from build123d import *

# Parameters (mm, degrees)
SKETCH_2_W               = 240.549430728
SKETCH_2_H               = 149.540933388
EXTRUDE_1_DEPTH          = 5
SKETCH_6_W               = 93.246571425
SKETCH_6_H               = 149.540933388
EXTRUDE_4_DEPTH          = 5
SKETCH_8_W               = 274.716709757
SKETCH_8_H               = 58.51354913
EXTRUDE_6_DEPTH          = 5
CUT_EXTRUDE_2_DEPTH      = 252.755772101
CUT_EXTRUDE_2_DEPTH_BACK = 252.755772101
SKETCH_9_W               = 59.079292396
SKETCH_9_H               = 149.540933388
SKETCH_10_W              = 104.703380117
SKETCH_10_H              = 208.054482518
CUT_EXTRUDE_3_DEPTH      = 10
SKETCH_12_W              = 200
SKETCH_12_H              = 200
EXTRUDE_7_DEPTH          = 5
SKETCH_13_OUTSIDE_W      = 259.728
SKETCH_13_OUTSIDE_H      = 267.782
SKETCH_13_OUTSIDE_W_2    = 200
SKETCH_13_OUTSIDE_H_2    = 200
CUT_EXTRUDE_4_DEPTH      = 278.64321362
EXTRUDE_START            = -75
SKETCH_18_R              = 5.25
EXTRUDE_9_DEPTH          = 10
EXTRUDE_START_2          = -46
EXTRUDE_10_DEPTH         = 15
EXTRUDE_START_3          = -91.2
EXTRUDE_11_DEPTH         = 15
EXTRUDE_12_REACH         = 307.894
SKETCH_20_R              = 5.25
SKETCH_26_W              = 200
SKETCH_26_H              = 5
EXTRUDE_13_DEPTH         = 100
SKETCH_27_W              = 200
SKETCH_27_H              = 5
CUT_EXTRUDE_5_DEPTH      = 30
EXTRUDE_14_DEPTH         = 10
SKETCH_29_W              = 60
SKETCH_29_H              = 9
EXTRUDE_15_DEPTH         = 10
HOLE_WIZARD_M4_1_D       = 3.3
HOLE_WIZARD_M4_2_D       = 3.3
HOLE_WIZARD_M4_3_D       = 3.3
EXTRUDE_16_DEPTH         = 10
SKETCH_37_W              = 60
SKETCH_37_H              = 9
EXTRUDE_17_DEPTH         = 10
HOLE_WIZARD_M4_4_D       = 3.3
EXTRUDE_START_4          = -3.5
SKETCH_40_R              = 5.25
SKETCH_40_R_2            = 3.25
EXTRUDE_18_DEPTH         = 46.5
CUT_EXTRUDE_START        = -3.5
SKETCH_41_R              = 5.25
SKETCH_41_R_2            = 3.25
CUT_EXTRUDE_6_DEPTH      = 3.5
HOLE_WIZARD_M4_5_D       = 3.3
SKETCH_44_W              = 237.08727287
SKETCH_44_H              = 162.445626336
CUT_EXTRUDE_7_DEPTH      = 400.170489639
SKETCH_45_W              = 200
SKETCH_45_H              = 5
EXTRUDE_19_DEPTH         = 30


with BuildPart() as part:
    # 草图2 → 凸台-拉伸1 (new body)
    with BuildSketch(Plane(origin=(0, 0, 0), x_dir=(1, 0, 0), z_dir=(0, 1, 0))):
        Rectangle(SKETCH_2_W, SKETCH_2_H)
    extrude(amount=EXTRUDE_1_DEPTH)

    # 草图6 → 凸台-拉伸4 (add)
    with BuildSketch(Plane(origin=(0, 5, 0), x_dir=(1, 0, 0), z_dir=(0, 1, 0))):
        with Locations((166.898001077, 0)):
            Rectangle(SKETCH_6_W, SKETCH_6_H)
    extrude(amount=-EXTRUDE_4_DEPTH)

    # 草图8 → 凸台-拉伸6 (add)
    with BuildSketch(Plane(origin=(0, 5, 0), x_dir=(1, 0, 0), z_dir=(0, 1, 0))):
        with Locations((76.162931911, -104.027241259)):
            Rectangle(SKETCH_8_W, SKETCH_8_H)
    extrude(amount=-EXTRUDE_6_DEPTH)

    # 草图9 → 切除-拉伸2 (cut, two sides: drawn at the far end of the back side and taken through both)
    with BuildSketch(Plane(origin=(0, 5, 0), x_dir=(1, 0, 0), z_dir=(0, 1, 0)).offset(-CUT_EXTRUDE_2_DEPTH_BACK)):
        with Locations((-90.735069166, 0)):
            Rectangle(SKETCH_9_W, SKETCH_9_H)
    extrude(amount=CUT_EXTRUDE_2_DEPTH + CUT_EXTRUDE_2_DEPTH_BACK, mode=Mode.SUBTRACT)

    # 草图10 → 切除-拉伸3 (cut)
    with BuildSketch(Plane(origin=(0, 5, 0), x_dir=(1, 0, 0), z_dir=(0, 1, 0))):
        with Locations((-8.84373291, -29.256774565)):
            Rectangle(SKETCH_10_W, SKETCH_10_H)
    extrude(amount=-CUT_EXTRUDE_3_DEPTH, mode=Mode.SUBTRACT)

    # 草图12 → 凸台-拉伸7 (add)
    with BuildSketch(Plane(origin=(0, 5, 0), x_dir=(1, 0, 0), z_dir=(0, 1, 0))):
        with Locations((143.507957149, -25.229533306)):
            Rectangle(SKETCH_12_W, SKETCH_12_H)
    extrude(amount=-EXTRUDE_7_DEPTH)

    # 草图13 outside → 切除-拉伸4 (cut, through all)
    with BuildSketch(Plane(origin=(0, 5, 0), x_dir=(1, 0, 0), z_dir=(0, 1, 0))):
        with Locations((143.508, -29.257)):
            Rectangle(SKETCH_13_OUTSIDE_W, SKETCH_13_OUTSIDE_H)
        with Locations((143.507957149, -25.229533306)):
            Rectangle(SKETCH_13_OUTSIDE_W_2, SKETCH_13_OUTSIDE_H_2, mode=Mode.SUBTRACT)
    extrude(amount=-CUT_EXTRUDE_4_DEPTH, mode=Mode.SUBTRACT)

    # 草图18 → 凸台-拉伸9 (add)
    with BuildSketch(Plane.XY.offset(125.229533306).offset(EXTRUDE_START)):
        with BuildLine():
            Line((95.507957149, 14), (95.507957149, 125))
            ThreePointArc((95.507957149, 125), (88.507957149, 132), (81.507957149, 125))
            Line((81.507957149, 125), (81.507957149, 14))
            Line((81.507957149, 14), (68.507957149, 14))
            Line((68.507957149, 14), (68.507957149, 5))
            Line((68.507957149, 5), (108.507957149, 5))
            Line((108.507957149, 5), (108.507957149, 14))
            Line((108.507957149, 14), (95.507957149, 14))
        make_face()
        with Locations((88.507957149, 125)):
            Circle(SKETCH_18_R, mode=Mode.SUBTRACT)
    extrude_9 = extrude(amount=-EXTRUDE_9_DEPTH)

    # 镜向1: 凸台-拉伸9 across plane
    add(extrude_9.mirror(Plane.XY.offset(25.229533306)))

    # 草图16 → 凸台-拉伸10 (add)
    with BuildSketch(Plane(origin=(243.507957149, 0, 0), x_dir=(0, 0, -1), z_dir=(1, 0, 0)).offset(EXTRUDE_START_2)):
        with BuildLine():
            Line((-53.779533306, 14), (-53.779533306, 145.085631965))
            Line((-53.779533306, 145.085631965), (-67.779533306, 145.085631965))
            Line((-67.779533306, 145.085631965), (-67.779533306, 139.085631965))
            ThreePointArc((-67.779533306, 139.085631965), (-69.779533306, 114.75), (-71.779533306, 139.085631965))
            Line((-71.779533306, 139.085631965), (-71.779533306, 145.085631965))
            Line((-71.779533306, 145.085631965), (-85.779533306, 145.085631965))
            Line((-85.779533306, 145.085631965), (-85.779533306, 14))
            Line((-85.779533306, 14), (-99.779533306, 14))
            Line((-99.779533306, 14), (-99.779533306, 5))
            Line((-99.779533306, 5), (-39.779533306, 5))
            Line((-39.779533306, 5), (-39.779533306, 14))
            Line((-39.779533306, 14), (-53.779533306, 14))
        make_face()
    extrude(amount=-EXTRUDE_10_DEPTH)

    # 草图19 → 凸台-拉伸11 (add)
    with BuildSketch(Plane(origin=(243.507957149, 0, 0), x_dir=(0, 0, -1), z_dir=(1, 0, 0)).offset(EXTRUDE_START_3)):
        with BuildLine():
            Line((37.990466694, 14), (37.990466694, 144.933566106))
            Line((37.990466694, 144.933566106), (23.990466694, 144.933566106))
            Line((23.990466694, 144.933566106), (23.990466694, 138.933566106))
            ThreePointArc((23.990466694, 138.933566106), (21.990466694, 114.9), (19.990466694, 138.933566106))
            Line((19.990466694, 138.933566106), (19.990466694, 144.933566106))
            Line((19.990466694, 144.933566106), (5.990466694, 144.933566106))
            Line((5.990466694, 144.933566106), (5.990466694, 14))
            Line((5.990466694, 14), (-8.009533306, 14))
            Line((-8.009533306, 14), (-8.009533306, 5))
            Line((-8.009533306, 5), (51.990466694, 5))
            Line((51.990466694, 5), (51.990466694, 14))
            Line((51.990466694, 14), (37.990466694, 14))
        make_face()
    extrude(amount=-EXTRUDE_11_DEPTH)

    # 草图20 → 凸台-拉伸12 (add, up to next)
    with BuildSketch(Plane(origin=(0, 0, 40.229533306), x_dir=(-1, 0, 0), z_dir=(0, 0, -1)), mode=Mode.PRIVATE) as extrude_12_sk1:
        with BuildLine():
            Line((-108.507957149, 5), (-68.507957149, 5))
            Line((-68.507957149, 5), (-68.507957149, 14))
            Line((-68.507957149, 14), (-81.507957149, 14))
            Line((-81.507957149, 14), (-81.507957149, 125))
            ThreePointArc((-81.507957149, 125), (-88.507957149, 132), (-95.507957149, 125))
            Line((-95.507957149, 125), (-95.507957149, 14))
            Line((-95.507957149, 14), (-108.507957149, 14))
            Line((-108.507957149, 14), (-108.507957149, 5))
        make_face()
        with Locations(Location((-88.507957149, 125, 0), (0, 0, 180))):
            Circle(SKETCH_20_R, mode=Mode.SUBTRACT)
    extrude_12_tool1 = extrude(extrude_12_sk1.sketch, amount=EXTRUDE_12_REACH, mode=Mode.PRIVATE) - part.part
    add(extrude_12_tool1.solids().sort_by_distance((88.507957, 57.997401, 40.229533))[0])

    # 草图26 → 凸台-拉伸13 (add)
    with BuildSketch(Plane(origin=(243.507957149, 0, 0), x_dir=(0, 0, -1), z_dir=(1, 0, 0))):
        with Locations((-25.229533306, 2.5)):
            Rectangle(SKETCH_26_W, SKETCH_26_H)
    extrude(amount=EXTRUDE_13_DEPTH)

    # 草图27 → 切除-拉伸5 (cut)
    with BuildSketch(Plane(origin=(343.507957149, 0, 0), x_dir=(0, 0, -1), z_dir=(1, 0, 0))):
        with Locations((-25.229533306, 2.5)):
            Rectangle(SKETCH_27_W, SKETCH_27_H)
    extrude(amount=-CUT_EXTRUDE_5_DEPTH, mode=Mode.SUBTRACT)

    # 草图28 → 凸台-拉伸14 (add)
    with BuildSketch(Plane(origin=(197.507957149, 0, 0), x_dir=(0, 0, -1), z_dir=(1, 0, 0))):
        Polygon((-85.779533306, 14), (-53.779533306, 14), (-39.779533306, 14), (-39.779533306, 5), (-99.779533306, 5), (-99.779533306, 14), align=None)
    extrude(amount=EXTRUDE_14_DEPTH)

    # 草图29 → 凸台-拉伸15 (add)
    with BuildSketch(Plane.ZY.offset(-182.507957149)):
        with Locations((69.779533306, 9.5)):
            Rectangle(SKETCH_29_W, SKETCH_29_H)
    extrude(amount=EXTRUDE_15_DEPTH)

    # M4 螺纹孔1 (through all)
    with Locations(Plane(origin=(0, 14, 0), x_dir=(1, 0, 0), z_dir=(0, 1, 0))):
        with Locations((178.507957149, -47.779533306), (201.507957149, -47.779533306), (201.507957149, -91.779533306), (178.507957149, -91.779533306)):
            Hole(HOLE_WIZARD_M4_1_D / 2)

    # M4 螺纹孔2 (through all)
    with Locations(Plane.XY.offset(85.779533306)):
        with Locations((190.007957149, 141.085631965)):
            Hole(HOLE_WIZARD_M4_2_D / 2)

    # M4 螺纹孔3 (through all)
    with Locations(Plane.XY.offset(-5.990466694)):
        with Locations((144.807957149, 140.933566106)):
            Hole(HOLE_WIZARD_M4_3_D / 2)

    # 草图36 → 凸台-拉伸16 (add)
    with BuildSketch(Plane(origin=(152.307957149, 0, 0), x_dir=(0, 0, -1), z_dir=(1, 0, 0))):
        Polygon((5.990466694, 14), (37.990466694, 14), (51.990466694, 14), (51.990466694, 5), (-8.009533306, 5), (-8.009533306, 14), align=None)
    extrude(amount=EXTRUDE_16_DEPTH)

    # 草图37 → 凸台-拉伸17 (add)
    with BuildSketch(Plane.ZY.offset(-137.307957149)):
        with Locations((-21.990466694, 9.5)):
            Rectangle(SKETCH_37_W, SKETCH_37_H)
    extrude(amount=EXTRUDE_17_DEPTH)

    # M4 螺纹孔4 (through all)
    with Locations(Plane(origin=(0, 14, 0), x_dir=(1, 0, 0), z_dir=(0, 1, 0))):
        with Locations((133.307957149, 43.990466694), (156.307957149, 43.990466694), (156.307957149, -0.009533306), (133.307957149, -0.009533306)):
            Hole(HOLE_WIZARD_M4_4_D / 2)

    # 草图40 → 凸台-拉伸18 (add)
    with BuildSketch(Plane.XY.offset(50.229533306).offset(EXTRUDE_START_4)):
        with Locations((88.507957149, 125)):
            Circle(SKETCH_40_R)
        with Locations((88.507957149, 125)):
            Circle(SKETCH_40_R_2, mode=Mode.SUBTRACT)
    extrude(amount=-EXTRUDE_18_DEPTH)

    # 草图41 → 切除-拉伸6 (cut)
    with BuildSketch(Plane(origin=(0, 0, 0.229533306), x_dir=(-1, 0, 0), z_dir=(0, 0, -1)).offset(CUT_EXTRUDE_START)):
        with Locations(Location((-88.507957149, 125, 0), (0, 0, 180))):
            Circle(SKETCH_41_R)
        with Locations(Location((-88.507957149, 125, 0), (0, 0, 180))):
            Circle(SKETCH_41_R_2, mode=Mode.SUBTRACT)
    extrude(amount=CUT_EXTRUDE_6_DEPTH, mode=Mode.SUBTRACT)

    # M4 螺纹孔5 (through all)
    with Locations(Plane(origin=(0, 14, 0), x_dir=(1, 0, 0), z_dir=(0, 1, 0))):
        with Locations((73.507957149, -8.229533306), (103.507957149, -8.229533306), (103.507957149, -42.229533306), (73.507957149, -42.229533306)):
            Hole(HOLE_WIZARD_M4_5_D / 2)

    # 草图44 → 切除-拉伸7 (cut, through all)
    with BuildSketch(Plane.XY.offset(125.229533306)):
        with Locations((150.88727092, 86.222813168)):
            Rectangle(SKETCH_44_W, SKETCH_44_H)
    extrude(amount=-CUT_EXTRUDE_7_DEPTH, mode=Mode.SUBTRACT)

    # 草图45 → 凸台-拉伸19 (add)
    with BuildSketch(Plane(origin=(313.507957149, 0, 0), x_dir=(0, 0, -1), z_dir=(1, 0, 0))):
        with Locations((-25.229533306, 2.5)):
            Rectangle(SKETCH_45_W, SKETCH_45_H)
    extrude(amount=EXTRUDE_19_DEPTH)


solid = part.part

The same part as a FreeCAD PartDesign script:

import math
import FreeCAD as App
import Part
import Sketcher

V = App.Vector


def add_polygon(sketch, points):
    """Adds a closed chain of lines whose ends are joined by coincident constraints."""
    first, n = sketch.GeometryCount, len(points)
    for a, b in zip(points, points[1:] + points[:1]):
        sketch.addGeometry(Part.LineSegment(App.Vector(*a, 0), App.Vector(*b, 0)), False)
    for i in range(n):
        sketch.addConstraint(Sketcher.Constraint("Coincident", first + i, 2, first + (i + 1) % n, 1))

doc = App.newDocument("Part")
body = doc.addObject("PartDesign::Body", "Body")

sketch1 = doc.addObject("Sketcher::SketchObject", "Sketch")
body.addObject(sketch1)
sketch1.AttachmentSupport = (doc.XZ_Plane, [""])
sketch1.MapMode = "FlatFace"
add_polygon(sketch1, [(-120.274715, -74.770467), (-120.274715, 74.770467), (120.274715, 74.770467), (120.274715, -74.770467)])
sketch1.addConstraint([
    Sketcher.Constraint("Vertical", 0),
    Sketcher.Constraint("Horizontal", 1),
    Sketcher.Constraint("Vertical", 2),
    Sketcher.Constraint("Horizontal", 3),
    Sketcher.Constraint("Symmetric", 0, 2, 2, 2, -1, 1),
    Sketcher.Constraint("DistanceX", 1, 1, 1, 2, 240.549431),
    Sketcher.Constraint("DistanceY", 0, 1, 0, 2, 149.540933),
])
pad1 = doc.addObject("PartDesign::Pad", "Pad")
body.addObject(pad1)
pad1.Profile = sketch1
pad1.Length = 5
pad1.Reversed = True

sketch2 = doc.addObject("Sketcher::SketchObject", "Sketch001")
body.addObject(sketch2)
sketch2.AttachmentSupport = (doc.XZ_Plane, [""])
sketch2.MapMode = "FlatFace"
sketch2.AttachmentOffset = App.Placement(V(0, 0, -5), App.Rotation())
add_polygon(sketch2, [(120.274715, -74.770467), (120.274715, 74.770467), (213.521287, 74.770467), (213.521287, -74.770467)])
sketch2.addConstraint([
    Sketcher.Constraint("Vertical", 0),
    Sketcher.Constraint("Horizontal", 1),
    Sketcher.Constraint("Vertical", 2),
    Sketcher.Constraint("Horizontal", 3),
    Sketcher.Constraint("DistanceX", 1, 1, 1, 2, 93.246571),
    Sketcher.Constraint("DistanceY", 0, 1, 0, 2, 149.540933),
    Sketcher.Constraint("DistanceX", -1, 1, 0, 2, 120.274715),
    Sketcher.Constraint("DistanceY", -1, 1, 0, 2, 74.770467),
])
pad2 = doc.addObject("PartDesign::Pad", "Pad001")
body.addObject(pad2)
pad2.Profile = sketch2
pad2.Length = 5

sketch3 = doc.addObject("Sketcher::SketchObject", "Sketch002")
body.addObject(sketch3)
sketch3.AttachmentSupport = (doc.XZ_Plane, [""])
sketch3.MapMode = "FlatFace"
sketch3.AttachmentOffset = App.Placement(V(0, 0, -5), App.Rotation())
add_polygon(sketch3, [(-61.195423, 74.770467), (-61.195423, 133.284016), (213.521287, 133.284016), (213.521287, 74.770467)])
sketch3.addConstraint([
    Sketcher.Constraint("Vertical", 0),
    Sketcher.Constraint("Horizontal", 1),
    Sketcher.Constraint("Vertical", 2),
    Sketcher.Constraint("Horizontal", 3),
    Sketcher.Constraint("DistanceX", 1, 1, 1, 2, 274.71671),
    Sketcher.Constraint("DistanceY", 0, 1, 0, 2, 58.513549),
    Sketcher.Constraint("DistanceX", 0, 2, -1, 1, 61.195423),
    Sketcher.Constraint("DistanceY", -1, 1, 0, 2, 133.284016),
])
pad3 = doc.addObject("PartDesign::Pad", "Pad002")
body.addObject(pad3)
pad3.Profile = sketch3
pad3.Length = 5

sketch4 = doc.addObject("Sketcher::SketchObject", "Sketch003")
body.addObject(sketch4)
sketch4.AttachmentSupport = (doc.XZ_Plane, [""])
sketch4.MapMode = "FlatFace"
sketch4.AttachmentOffset = App.Placement(V(0, 0, -5), App.Rotation())
add_polygon(sketch4, [(-120.274715, -74.770467), (-120.274715, 74.770467), (-61.195423, 74.770467), (-61.195423, -74.770467)])
sketch4.addConstraint([
    Sketcher.Constraint("Vertical", 0),
    Sketcher.Constraint("Horizontal", 1),
    Sketcher.Constraint("Vertical", 2),
    Sketcher.Constraint("Horizontal", 3),
    Sketcher.Constraint("DistanceX", 1, 1, 1, 2, 59.079292),
    Sketcher.Constraint("DistanceY", 0, 1, 0, 2, 149.540933),
    Sketcher.Constraint("DistanceX", 0, 2, -1, 1, 120.274715),
    Sketcher.Constraint("DistanceY", -1, 1, 0, 2, 74.770467),
])
pocket1 = doc.addObject("PartDesign::Pocket", "Pocket")
body.addObject(pocket1)
pocket1.Profile = sketch4
pocket1.Type = "ThroughAll"
pocket1.Midplane = True

sketch5 = doc.addObject("Sketcher::SketchObject", "Sketch004")
body.addObject(sketch5)
sketch5.AttachmentSupport = (doc.XZ_Plane, [""])
sketch5.MapMode = "FlatFace"
sketch5.AttachmentOffset = App.Placement(V(0, 0, -5), App.Rotation())
add_polygon(sketch5, [(-61.195423, -74.770467), (-61.195423, 133.284016), (43.507957, 133.284016), (43.507957, -74.770467)])
sketch5.addConstraint([
    Sketcher.Constraint("Vertical", 0),
    Sketcher.Constraint("Horizontal", 1),
    Sketcher.Constraint("Vertical", 2),
    Sketcher.Constraint("Horizontal", 3),
    Sketcher.Constraint("DistanceX", 1, 1, 1, 2, 104.70338),
    Sketcher.Constraint("DistanceY", 0, 1, 0, 2, 208.054483),
    Sketcher.Constraint("DistanceX", 0, 2, -1, 1, 61.195423),
    Sketcher.Constraint("DistanceY", -1, 1, 0, 2, 133.284016),
])
pocket2 = doc.addObject("PartDesign::Pocket", "Pocket001")
body.addObject(pocket2)
pocket2.Profile = sketch5
pocket2.Length = 10
pocket2.Reversed = True

sketch6 = doc.addObject("Sketcher::SketchObject", "Sketch005")
body.addObject(sketch6)
sketch6.AttachmentSupport = (doc.XZ_Plane, [""])
sketch6.MapMode = "FlatFace"
sketch6.AttachmentOffset = App.Placement(V(0, 0, -5), App.Rotation())
add_polygon(sketch6, [(43.507957, -74.770467), (43.507957, 125.229533), (243.507957, 125.229533), (243.507957, -74.770467)])
sketch6.addConstraint([
    Sketcher.Constraint("Vertical", 0),
    Sketcher.Constraint("Horizontal", 1),
    Sketcher.Constraint("Vertical", 2),
    Sketcher.Constraint("Horizontal", 3),
    Sketcher.Constraint("Equal", 3, 0),
    Sketcher.Constraint("DistanceX", 1, 1, 1, 2, 200.0),
    Sketcher.Constraint("DistanceX", -1, 1, 0, 2, 43.507957),
    Sketcher.Constraint("DistanceY", -1, 1, 0, 2, 125.229533),
])
pad4 = doc.addObject("PartDesign::Pad", "Pad003")
body.addObject(pad4)
pad4.Profile = sketch6
pad4.Length = 5

sketch7 = doc.addObject("Sketcher::SketchObject", "Sketch006")
body.addObject(sketch7)
sketch7.AttachmentSupport = (doc.XZ_Plane, [""])
sketch7.MapMode = "FlatFace"
sketch7.AttachmentOffset = App.Placement(V(0, 0, -5), App.Rotation())
add_polygon(sketch7, [(13.644, -104.634), (13.644, 163.148), (273.372, 163.148), (273.372, -104.634)])
add_polygon(sketch7, [(243.507957, 125.229533), (43.507957, 125.229533), (43.507957, -74.770467), (243.507957, -74.770467)])
sketch7.addConstraint([
    Sketcher.Constraint("Vertical", 0),
    Sketcher.Constraint("Horizontal", 1),
    Sketcher.Constraint("Vertical", 2),
    Sketcher.Constraint("Horizontal", 3),
    Sketcher.Constraint("Horizontal", 4),
    Sketcher.Constraint("Vertical", 5),
    Sketcher.Constraint("Horizontal", 6),
    Sketcher.Constraint("Vertical", 7),
    Sketcher.Constraint("Equal", 6, 5),
    Sketcher.Constraint("DistanceX", 4, 2, 4, 1, 200.0),
    Sketcher.Constraint("DistanceX", 1, 1, 1, 2, 259.728),
    Sketcher.Constraint("DistanceY", 0, 1, 0, 2, 267.782),
    Sketcher.Constraint("DistanceX", -1, 1, 0, 2, 13.644),
    Sketcher.Constraint("DistanceY", -1, 1, 0, 2, 163.148),
    Sketcher.Constraint("DistanceX", -1, 1, 4, 2, 43.507957),
    Sketcher.Constraint("DistanceY", -1, 1, 4, 2, 125.229533),
])
pocket3 = doc.addObject("PartDesign::Pocket", "Pocket002")
body.addObject(pocket3)
pocket3.Profile = sketch7
pocket3.Type = "ThroughAll"
pocket3.Reversed = True

sketch8 = doc.addObject("Sketcher::SketchObject", "Sketch007")
body.addObject(sketch8)
sketch8.AttachmentSupport = (doc.XY_Plane, [""])
sketch8.MapMode = "FlatFace"
sketch8.AttachmentOffset = App.Placement(V(0, 0, 50.229533), App.Rotation())
sketch8.addGeometry([
    Part.LineSegment(V(95.507957, 14, 0), V(95.507957, 125, 0)),
    Part.ArcOfCircle(Part.Circle(V(88.507957, 125, 0), V(0, 0, 1), 7), math.radians(0), math.radians(180)),
    Part.LineSegment(V(81.507957, 125, 0), V(81.507957, 14, 0)),
    Part.LineSegment(V(81.507957, 14, 0), V(68.507957, 14, 0)),
    Part.LineSegment(V(68.507957, 14, 0), V(68.507957, 5, 0)),
    Part.LineSegment(V(68.507957, 5, 0), V(108.507957, 5, 0)),
    Part.LineSegment(V(108.507957, 5, 0), V(108.507957, 14, 0)),
    Part.LineSegment(V(108.507957, 14, 0), V(95.507957, 14, 0)),
    Part.Circle(V(88.507957, 125, 0), V(0, 0, 1), 5.25),
], False)
sketch8.addConstraint([
    Sketcher.Constraint("Tangent", 0, 2, 1, 1),
    Sketcher.Constraint("Tangent", 1, 2, 2, 1),
    Sketcher.Constraint("Coincident", 2, 2, 3, 1),
    Sketcher.Constraint("Coincident", 3, 2, 4, 1),
    Sketcher.Constraint("Coincident", 4, 2, 5, 1),
    Sketcher.Constraint("Coincident", 5, 2, 6, 1),
    Sketcher.Constraint("Coincident", 6, 2, 7, 1),
    Sketcher.Constraint("Coincident", 7, 2, 0, 1),
    Sketcher.Constraint("Vertical", 0),
    Sketcher.Constraint("Vertical", 2),
    Sketcher.Constraint("Horizontal", 3),
    Sketcher.Constraint("Vertical", 4),
    Sketcher.Constraint("Horizontal", 5),
    Sketcher.Constraint("Vertical", 6),
    Sketcher.Constraint("Horizontal", 7),
    Sketcher.Constraint("Coincident", 8, 3, 1, 3),
    Sketcher.Constraint("Horizontal", 3, 2, 6, 2),
    Sketcher.Constraint("Equal", 3, 7),
    Sketcher.Constraint("Radius", 1, 7.0),
    Sketcher.Constraint("Diameter", 8, 10.5),
    Sketcher.Constraint("DistanceX", 3, 2, 3, 1, 13.0),
    Sketcher.Constraint("DistanceY", 0, 1, 0, 2, 111.0),
    Sketcher.Constraint("DistanceY", 4, 2, 4, 1, 9.0),
    Sketcher.Constraint("DistanceY", -1, 1, 1, 3, 125.0),
    Sketcher.Constraint("DistanceX", -1, 1, 1, 3, 88.507957),
])
pad5 = doc.addObject("PartDesign::Pad", "Pad004")
body.addObject(pad5)
pad5.Profile = sketch8
pad5.Length = 10
pad5.Reversed = True
doc.recompute()

datumplane = doc.addObject("PartDesign::Plane", "DatumPlane")
body.addObject(datumplane)
datumplane.AttachmentSupport = (doc.XY_Plane, [""])
datumplane.MapMode = "FlatFace"
datumplane.AttachmentOffset = App.Placement(V(0, 0, 25.229533), App.Rotation())
mirrored = doc.addObject("PartDesign::Mirrored", "Mirrored")
body.addObject(mirrored)
mirrored.Originals = [pad5]
mirrored.MirrorPlane = (datumplane, [""])
body.Tip = mirrored

sketch9 = doc.addObject("Sketcher::SketchObject", "Sketch008")
body.addObject(sketch9)
sketch9.AttachmentSupport = (doc.YZ_Plane, [""])
sketch9.MapMode = "FlatFace"
sketch9.AttachmentOffset = App.Placement(V(0, 0, 197.507957), App.Rotation())
sketch9.addGeometry([
    Part.LineSegment(V(14, 53.779533, 0), V(145.085632, 53.779533, 0)),
    Part.LineSegment(V(145.085632, 53.779533, 0), V(145.085632, 67.779533, 0)),
    Part.LineSegment(V(145.085632, 67.779533, 0), V(139.085632, 67.779533, 0)),
    Part.ArcOfCircle(Part.Circle(V(127, 69.779533, 0), V(0, 0, 1), 12.25), math.radians(9.396477), math.radians(350.603523)),
    Part.LineSegment(V(139.085632, 71.779533, 0), V(145.085632, 71.779533, 0)),
    Part.LineSegment(V(145.085632, 71.779533, 0), V(145.085632, 85.779533, 0)),
    Part.LineSegment(V(145.085632, 85.779533, 0), V(14, 85.779533, 0)),
    Part.LineSegment(V(14, 85.779533, 0), V(14, 99.779533, 0)),
    Part.LineSegment(V(14, 99.779533, 0), V(5, 99.779533, 0)),
    Part.LineSegment(V(5, 99.779533, 0), V(5, 39.779533, 0)),
    Part.LineSegment(V(5, 39.779533, 0), V(14, 39.779533, 0)),
    Part.LineSegment(V(14, 39.779533, 0), V(14, 53.779533, 0)),
], False)
sketch9.addConstraint([
    Sketcher.Constraint("Coincident", 0, 2, 1, 1),
    Sketcher.Constraint("Coincident", 1, 2, 2, 1),
    Sketcher.Constraint("Coincident", 2, 2, 3, 2),
    Sketcher.Constraint("Coincident", 3, 1, 4, 1),
    Sketcher.Constraint("Coincident", 4, 2, 5, 1),
    Sketcher.Constraint("Coincident", 5, 2, 6, 1),
    Sketcher.Constraint("Coincident", 6, 2, 7, 1),
    Sketcher.Constraint("Coincident", 7, 2, 8, 1),
    Sketcher.Constraint("Coincident", 8, 2, 9, 1),
    Sketcher.Constraint("Coincident", 9, 2, 10, 1),
    Sketcher.Constraint("Coincident", 10, 2, 11, 1),
    Sketcher.Constraint("Coincident", 11, 2, 0, 1),
    Sketcher.Constraint("Horizontal", 0),
    Sketcher.Constraint("Vertical", 1),
    Sketcher.Constraint("Horizontal", 2),
    Sketcher.Constraint("Horizontal", 4),
    Sketcher.Constraint("Vertical", 5),
    Sketcher.Constraint("Horizontal", 6),
    Sketcher.Constraint("Vertical", 7),
    Sketcher.Constraint("Horizontal", 8),
    Sketcher.Constraint("Vertical", 9),
    Sketcher.Constraint("Horizontal", 10),
    Sketcher.Constraint("Vertical", 11),
    Sketcher.Constraint("Vertical", 2, 2, 3, 1),
    Sketcher.Constraint("Vertical", 1, 2, 4, 2),
    Sketcher.Constraint("Vertical", 7, 2, 10, 2),
    Sketcher.Constraint("Equal", 1, 5),
    Sketcher.Constraint("Equal", 5, 7),
    Sketcher.Constraint("Equal", 7, 11),
    Sketcher.Constraint("DistanceX", 2, 2, 2, 1, 6.0),
    Sketcher.Constraint("DistanceX", 8, 2, 8, 1, 9.0),
    Sketcher.Constraint("DistanceY", 1, 1, 1, 2, 14.0),
    Sketcher.Constraint("DistanceY", 9, 2, 9, 1, 60.0),
    Sketcher.Constraint("Radius", 3, 12.25),
    Sketcher.Constraint("DistanceX", -1, 1, 3, 3, 127.0),
    Sketcher.Constraint("DistanceX", -1, 1, 6, 2, 14.0),
    Sketcher.Constraint("DistanceY", -1, 1, 3, 3, 69.779533),
])
pad6 = doc.addObject("PartDesign::Pad", "Pad005")
body.addObject(pad6)
pad6.Profile = sketch9
pad6.Length = 15
pad6.Reversed = True

sketch10 = doc.addObject("Sketcher::SketchObject", "Sketch009")
body.addObject(sketch10)
sketch10.AttachmentSupport = (doc.YZ_Plane, [""])
sketch10.MapMode = "FlatFace"
sketch10.AttachmentOffset = App.Placement(V(0, 0, 152.307957), App.Rotation())
sketch10.addGeometry([
    Part.LineSegment(V(14, -37.990467, 0), V(144.933566, -37.990467, 0)),
    Part.LineSegment(V(144.933566, -37.990467, 0), V(144.933566, -23.990467, 0)),
    Part.LineSegment(V(144.933566, -23.990467, 0), V(138.933566, -23.990467, 0)),
    Part.ArcOfCircle(Part.Circle(V(127, -21.990467, 0), V(0, 0, 1), 12.1), math.radians(9.514038), math.radians(350.485962)),
    Part.LineSegment(V(138.933566, -19.990467, 0), V(144.933566, -19.990467, 0)),
    Part.LineSegment(V(144.933566, -19.990467, 0), V(144.933566, -5.990467, 0)),
    Part.LineSegment(V(144.933566, -5.990467, 0), V(14, -5.990467, 0)),
    Part.LineSegment(V(14, -5.990467, 0), V(14, 8.009533, 0)),
    Part.LineSegment(V(14, 8.009533, 0), V(5, 8.009533, 0)),
    Part.LineSegment(V(5, 8.009533, 0), V(5, -51.990467, 0)),
    Part.LineSegment(V(5, -51.990467, 0), V(14, -51.990467, 0)),
    Part.LineSegment(V(14, -51.990467, 0), V(14, -37.990467, 0)),
], False)
sketch10.addConstraint([
    Sketcher.Constraint("Coincident", 0, 2, 1, 1),
    Sketcher.Constraint("Coincident", 1, 2, 2, 1),
    Sketcher.Constraint("Coincident", 2, 2, 3, 2),
    Sketcher.Constraint("Coincident", 3, 1, 4, 1),
    Sketcher.Constraint("Coincident", 4, 2, 5, 1),
    Sketcher.Constraint("Coincident", 5, 2, 6, 1),
    Sketcher.Constraint("Coincident", 6, 2, 7, 1),
    Sketcher.Constraint("Coincident", 7, 2, 8, 1),
    Sketcher.Constraint("Coincident", 8, 2, 9, 1),
    Sketcher.Constraint("Coincident", 9, 2, 10, 1),
    Sketcher.Constraint("Coincident", 10, 2, 11, 1),
    Sketcher.Constraint("Coincident", 11, 2, 0, 1),
    Sketcher.Constraint("Horizontal", 0),
    Sketcher.Constraint("Vertical", 1),
    Sketcher.Constraint("Horizontal", 2),
    Sketcher.Constraint("Horizontal", 4),
    Sketcher.Constraint("Vertical", 5),
    Sketcher.Constraint("Horizontal", 6),
    Sketcher.Constraint("Vertical", 7),
    Sketcher.Constraint("Horizontal", 8),
    Sketcher.Constraint("Vertical", 9),
    Sketcher.Constraint("Horizontal", 10),
    Sketcher.Constraint("Vertical", 11),
    Sketcher.Constraint("Vertical", 2, 2, 3, 1),
    Sketcher.Constraint("Vertical", 1, 2, 4, 2),
    Sketcher.Constraint("Vertical", 7, 2, 10, 2),
    Sketcher.Constraint("Equal", 1, 5),
    Sketcher.Constraint("Equal", 5, 7),
    Sketcher.Constraint("Equal", 7, 11),
    Sketcher.Constraint("Radius", 3, 12.1),
    Sketcher.Constraint("DistanceX", 2, 2, 2, 1, 6.0),
    Sketcher.Constraint("DistanceX", 8, 2, 8, 1, 9.0),
    Sketcher.Constraint("DistanceY", 1, 1, 1, 2, 14.0),
    Sketcher.Constraint("DistanceY", 9, 2, 9, 1, 60.0),
    Sketcher.Constraint("DistanceX", -1, 1, 3, 3, 127.0),
    Sketcher.Constraint("DistanceX", -1, 1, 6, 2, 14.0),
    Sketcher.Constraint("DistanceY", 3, 3, -1, 1, 21.990467),
])
pad7 = doc.addObject("PartDesign::Pad", "Pad006")
body.addObject(pad7)
pad7.Profile = sketch10
pad7.Length = 15
pad7.Reversed = True

sketch11 = doc.addObject("Sketcher::SketchObject", "Sketch010")
body.addObject(sketch11)
sketch11.AttachmentSupport = (doc.XY_Plane, [""])
sketch11.MapMode = "FlatFace"
sketch11.AttachmentOffset = App.Placement(V(0, 0, 40.229533), App.Rotation())
sketch11.addGeometry([
    Part.LineSegment(V(108.507957, 5, 0), V(68.507957, 5, 0)),
    Part.LineSegment(V(68.507957, 5, 0), V(68.507957, 14, 0)),
    Part.LineSegment(V(68.507957, 14, 0), V(81.507957, 14, 0)),
    Part.LineSegment(V(81.507957, 14, 0), V(81.507957, 125, 0)),
    Part.ArcOfCircle(Part.Circle(V(88.507957, 125, 0), V(0, 0, 1), 7), math.radians(0), math.radians(180)),
    Part.LineSegment(V(95.507957, 125, 0), V(95.507957, 14, 0)),
    Part.LineSegment(V(95.507957, 14, 0), V(108.507957, 14, 0)),
    Part.LineSegment(V(108.507957, 14, 0), V(108.507957, 5, 0)),
    Part.Circle(V(88.507957, 125, 0), V(0, 0, 1), 5.25),
], False)
sketch11.addConstraint([
    Sketcher.Constraint("Coincident", 0, 2, 1, 1),
    Sketcher.Constraint("Coincident", 1, 2, 2, 1),
    Sketcher.Constraint("Coincident", 2, 2, 3, 1),
    Sketcher.Constraint("Tangent", 3, 2, 4, 2),
    Sketcher.Constraint("Tangent", 4, 1, 5, 1),
    Sketcher.Constraint("Coincident", 5, 2, 6, 1),
    Sketcher.Constraint("Coincident", 6, 2, 7, 1),
    Sketcher.Constraint("Coincident", 7, 2, 0, 1),
    Sketcher.Constraint("Horizontal", 0),
    Sketcher.Constraint("Vertical", 1),
    Sketcher.Constraint("Horizontal", 2),
    Sketcher.Constraint("Vertical", 3),
    Sketcher.Constraint("Vertical", 5),
    Sketcher.Constraint("Horizontal", 6),
    Sketcher.Constraint("Vertical", 7),
    Sketcher.Constraint("Coincident", 8, 3, 4, 3),
    Sketcher.Constraint("Horizontal", 2, 2, 5, 2),
    Sketcher.Constraint("Equal", 2, 6),
    Sketcher.Constraint("Radius", 4, 7.0),
    Sketcher.Constraint("Diameter", 8, 10.5),
    Sketcher.Constraint("DistanceX", 0, 2, 0, 1, 40.0),
    Sketcher.Constraint("DistanceY", 1, 1, 1, 2, 9.0),
    Sketcher.Constraint("DistanceY", 3, 1, 3, 2, 111.0),
    Sketcher.Constraint("DistanceY", -1, 1, 4, 3, 125.0),
    Sketcher.Constraint("DistanceX", -1, 1, 4, 3, 88.507957),
])
pad8 = doc.addObject("PartDesign::Pad", "Pad007")
body.addObject(pad8)
pad8.Profile = sketch11
pad8.Type = "UpToFirst"
pad8.Reversed = True

sketch12 = doc.addObject("Sketcher::SketchObject", "Sketch011")
body.addObject(sketch12)
sketch12.AttachmentSupport = (doc.YZ_Plane, [""])
sketch12.MapMode = "FlatFace"
sketch12.AttachmentOffset = App.Placement(V(0, 0, 243.507957), App.Rotation())
add_polygon(sketch12, [(5, 125.229533), (0, 125.229533), (0, -74.770467), (5, -74.770467)])
sketch12.addConstraint([
    Sketcher.Constraint("Horizontal", 0),
    Sketcher.Constraint("Vertical", 1),
    Sketcher.Constraint("Horizontal", 2),
    Sketcher.Constraint("Vertical", 3),
    Sketcher.Constraint("PointOnObject", 0, 2, -2),
    Sketcher.Constraint("DistanceX", 0, 2, 0, 1, 5.0),
    Sketcher.Constraint("DistanceY", 1, 2, 1, 1, 200.0),
    Sketcher.Constraint("DistanceY", -1, 1, 0, 2, 125.229533),
])
pad9 = doc.addObject("PartDesign::Pad", "Pad008")
body.addObject(pad9)
pad9.Profile = sketch12
pad9.Length = 100

sketch13 = doc.addObject("Sketcher::SketchObject", "Sketch012")
body.addObject(sketch13)
sketch13.AttachmentSupport = (doc.YZ_Plane, [""])
sketch13.MapMode = "FlatFace"
sketch13.AttachmentOffset = App.Placement(V(0, 0, 343.507957), App.Rotation())
add_polygon(sketch13, [(5, 125.229533), (0, 125.229533), (0, -74.770467), (5, -74.770467)])
sketch13.addConstraint([
    Sketcher.Constraint("Horizontal", 0),
    Sketcher.Constraint("Vertical", 1),
    Sketcher.Constraint("Horizontal", 2),
    Sketcher.Constraint("Vertical", 3),
    Sketcher.Constraint("PointOnObject", 0, 2, -2),
    Sketcher.Constraint("DistanceX", 0, 2, 0, 1, 5.0),
    Sketcher.Constraint("DistanceY", 1, 2, 1, 1, 200.0),
    Sketcher.Constraint("DistanceY", -1, 1, 0, 2, 125.229533),
])
pocket4 = doc.addObject("PartDesign::Pocket", "Pocket003")
body.addObject(pocket4)
pocket4.Profile = sketch13
pocket4.Length = 30

sketch14 = doc.addObject("Sketcher::SketchObject", "Sketch013")
body.addObject(sketch14)
sketch14.AttachmentSupport = (doc.YZ_Plane, [""])
sketch14.MapMode = "FlatFace"
sketch14.AttachmentOffset = App.Placement(V(0, 0, 197.507957), App.Rotation())
add_polygon(sketch14, [(14, 39.779533), (14, 99.779533), (5, 99.779533), (5, 39.779533)])
sketch14.addConstraint([
    Sketcher.Constraint("Vertical", 0),
    Sketcher.Constraint("Horizontal", 1),
    Sketcher.Constraint("Vertical", 2),
    Sketcher.Constraint("Horizontal", 3),
    Sketcher.Constraint("DistanceX", 1, 2, 1, 1, 9.0),
    Sketcher.Constraint("DistanceY", 0, 1, 0, 2, 60.0),
    Sketcher.Constraint("DistanceX", -1, 1, 0, 2, 14.0),
    Sketcher.Constraint("DistanceY", -1, 1, 0, 2, 99.779533),
])
pad10 = doc.addObject("PartDesign::Pad", "Pad009")
body.addObject(pad10)
pad10.Profile = sketch14
pad10.Length = 10

sketch15 = doc.addObject("Sketcher::SketchObject", "Sketch014")
body.addObject(sketch15)
sketch15.AttachmentSupport = (doc.YZ_Plane, [""])
sketch15.MapMode = "FlatFace"
sketch15.AttachmentOffset = App.Placement(V(0, 0, 182.507957), App.Rotation())
add_polygon(sketch15, [(14, 39.779533), (5, 39.779533), (5, 99.779533), (14, 99.779533)])
sketch15.addConstraint([
    Sketcher.Constraint("Horizontal", 0),
    Sketcher.Constraint("Vertical", 1),
    Sketcher.Constraint("Horizontal", 2),
    Sketcher.Constraint("Vertical", 3),
    Sketcher.Constraint("DistanceX", 0, 2, 0, 1, 9.0),
    Sketcher.Constraint("DistanceY", 1, 1, 1, 2, 60.0),
    Sketcher.Constraint("DistanceX", -1, 1, 0, 2, 5.0),
    Sketcher.Constraint("DistanceY", -1, 1, 0, 2, 39.779533),
])
pad11 = doc.addObject("PartDesign::Pad", "Pad010")
body.addObject(pad11)
pad11.Profile = sketch15
pad11.Length = 10
pad11.Reversed = True

sketch16 = doc.addObject("Sketcher::SketchObject", "Sketch015")
body.addObject(sketch16)
sketch16.AttachmentSupport = (doc.XZ_Plane, [""])
sketch16.MapMode = "FlatFace"
sketch16.AttachmentOffset = App.Placement(V(0, 0, -14), App.Rotation())
sketch16.addGeometry([
    Part.Circle(V(178.507957, 47.779533, 0), V(0, 0, 1), 1.65),
    Part.Circle(V(201.507957, 47.779533, 0), V(0, 0, 1), 1.65),
    Part.Circle(V(201.507957, 91.779533, 0), V(0, 0, 1), 1.65),
    Part.Circle(V(178.507957, 91.779533, 0), V(0, 0, 1), 1.65),
], False)
sketch16.addConstraint([
    Sketcher.Constraint("Equal", 0, 1),
    Sketcher.Constraint("Equal", 1, 2),
    Sketcher.Constraint("Equal", 2, 3),
    Sketcher.Constraint("Horizontal", 0, 3, 1, 3),
    Sketcher.Constraint("Horizontal", 2, 3, 3, 3),
    Sketcher.Constraint("Vertical", 1, 3, 2, 3),
    Sketcher.Constraint("Vertical", 0, 3, 3, 3),
    Sketcher.Constraint("Diameter", 0, 3.3),
    Sketcher.Constraint("DistanceX", 0, 3, 1, 3, 23.0),
    Sketcher.Constraint("DistanceY", 1, 3, 2, 3, 44.0),
    Sketcher.Constraint("DistanceX", -1, 1, 0, 3, 178.507957),
    Sketcher.Constraint("DistanceY", -1, 1, 0, 3, 47.779533),
])
doc.recompute()
hole = doc.addObject("PartDesign::Hole", "Hole")
body.addObject(hole)
hole.Profile = sketch16
hole.ThreadType = "None"
hole.Diameter = 3.3
hole.DepthType = "ThroughAll"
hole.Reversed = True

sketch17 = doc.addObject("Sketcher::SketchObject", "Sketch016")
body.addObject(sketch17)
sketch17.AttachmentSupport = (doc.XY_Plane, [""])
sketch17.MapMode = "FlatFace"
sketch17.AttachmentOffset = App.Placement(V(0, 0, 85.779533), App.Rotation())
sketch17.addGeometry(Part.Circle(V(190.007957, 141.085632, 0), V(0, 0, 1), 1.65), False)
sketch17.addConstraint([
    Sketcher.Constraint("Diameter", 0, 3.3),
    Sketcher.Constraint("DistanceY", -1, 1, 0, 3, 141.085632),
    Sketcher.Constraint("DistanceX", -1, 1, 0, 3, 190.007957),
])
doc.recompute()
hole2 = doc.addObject("PartDesign::Hole", "Hole001")
body.addObject(hole2)
hole2.Profile = sketch17
hole2.ThreadType = "None"
hole2.Diameter = 3.3
hole2.DepthType = "ThroughAll"

sketch18 = doc.addObject("Sketcher::SketchObject", "Sketch017")
body.addObject(sketch18)
sketch18.AttachmentSupport = (doc.XY_Plane, [""])
sketch18.MapMode = "FlatFace"
sketch18.AttachmentOffset = App.Placement(V(0, 0, -5.990467), App.Rotation())
sketch18.addGeometry(Part.Circle(V(144.807957, 140.933566, 0), V(0, 0, 1), 1.65), False)
sketch18.addConstraint([
    Sketcher.Constraint("Diameter", 0, 3.3),
    Sketcher.Constraint("DistanceX", -1, 1, 0, 3, 144.807957),
    Sketcher.Constraint("DistanceY", -1, 1, 0, 3, 140.933566),
])
doc.recompute()
hole3 = doc.addObject("PartDesign::Hole", "Hole002")
body.addObject(hole3)
hole3.Profile = sketch18
hole3.ThreadType = "None"
hole3.Diameter = 3.3
hole3.DepthType = "ThroughAll"

sketch19 = doc.addObject("Sketcher::SketchObject", "Sketch018")
body.addObject(sketch19)
sketch19.AttachmentSupport = (doc.YZ_Plane, [""])
sketch19.MapMode = "FlatFace"
sketch19.AttachmentOffset = App.Placement(V(0, 0, 152.307957), App.Rotation())
add_polygon(sketch19, [(14, -51.990467), (14, 8.009533), (5, 8.009533), (5, -51.990467)])
sketch19.addConstraint([
    Sketcher.Constraint("Vertical", 0),
    Sketcher.Constraint("Horizontal", 1),
    Sketcher.Constraint("Vertical", 2),
    Sketcher.Constraint("Horizontal", 3),
    Sketcher.Constraint("DistanceX", 1, 2, 1, 1, 9.0),
    Sketcher.Constraint("DistanceY", 0, 1, 0, 2, 60.0),
    Sketcher.Constraint("DistanceX", -1, 1, 0, 2, 14.0),
    Sketcher.Constraint("DistanceY", -1, 1, 0, 2, 8.009533),
])
pad12 = doc.addObject("PartDesign::Pad", "Pad011")
body.addObject(pad12)
pad12.Profile = sketch19
pad12.Length = 10

sketch20 = doc.addObject("Sketcher::SketchObject", "Sketch019")
body.addObject(sketch20)
sketch20.AttachmentSupport = (doc.YZ_Plane, [""])
sketch20.MapMode = "FlatFace"
sketch20.AttachmentOffset = App.Placement(V(0, 0, 137.307957), App.Rotation())
add_polygon(sketch20, [(14, -51.990467), (5, -51.990467), (5, 8.009533), (14, 8.009533)])
sketch20.addConstraint([
    Sketcher.Constraint("Horizontal", 0),
    Sketcher.Constraint("Vertical", 1),
    Sketcher.Constraint("Horizontal", 2),
    Sketcher.Constraint("Vertical", 3),
    Sketcher.Constraint("DistanceX", 0, 2, 0, 1, 9.0),
    Sketcher.Constraint("DistanceY", 1, 1, 1, 2, 60.0),
    Sketcher.Constraint("DistanceX", -1, 1, 0, 2, 5.0),
    Sketcher.Constraint("DistanceY", 0, 2, -1, 1, 51.990467),
])
pad13 = doc.addObject("PartDesign::Pad", "Pad012")
body.addObject(pad13)
pad13.Profile = sketch20
pad13.Length = 10
pad13.Reversed = True

sketch21 = doc.addObject("Sketcher::SketchObject", "Sketch020")
body.addObject(sketch21)
sketch21.AttachmentSupport = (doc.XZ_Plane, [""])
sketch21.MapMode = "FlatFace"
sketch21.AttachmentOffset = App.Placement(V(0, 0, -14), App.Rotation())
sketch21.addGeometry([
    Part.Circle(V(133.307957, -43.990467, 0), V(0, 0, 1), 1.65),
    Part.Circle(V(156.307957, -43.990467, 0), V(0, 0, 1), 1.65),
    Part.Circle(V(156.307957, 0.009533, 0), V(0, 0, 1), 1.65),
    Part.Circle(V(133.307957, 0.009533, 0), V(0, 0, 1), 1.65),
], False)
sketch21.addConstraint([
    Sketcher.Constraint("Equal", 0, 1),
    Sketcher.Constraint("Equal", 1, 2),
    Sketcher.Constraint("Equal", 2, 3),
    Sketcher.Constraint("Horizontal", 0, 3, 1, 3),
    Sketcher.Constraint("Horizontal", 2, 3, 3, 3),
    Sketcher.Constraint("Vertical", 1, 3, 2, 3),
    Sketcher.Constraint("Vertical", 0, 3, 3, 3),
    Sketcher.Constraint("Diameter", 0, 3.3),
    Sketcher.Constraint("DistanceX", 0, 3, 1, 3, 23.0),
    Sketcher.Constraint("DistanceY", 1, 3, 2, 3, 44.0),
    Sketcher.Constraint("DistanceX", -1, 1, 0, 3, 133.307957),
    Sketcher.Constraint("DistanceY", 0, 3, -1, 1, 43.990467),
])
doc.recompute()
hole4 = doc.addObject("PartDesign::Hole", "Hole003")
body.addObject(hole4)
hole4.Profile = sketch21
hole4.ThreadType = "None"
hole4.Diameter = 3.3
hole4.DepthType = "ThroughAll"
hole4.Reversed = True

sketch22 = doc.addObject("Sketcher::SketchObject", "Sketch021")
body.addObject(sketch22)
sketch22.AttachmentSupport = (doc.XY_Plane, [""])
sketch22.MapMode = "FlatFace"
sketch22.AttachmentOffset = App.Placement(V(0, 0, 46.729533), App.Rotation())
sketch22.addGeometry([
    Part.Circle(V(88.507957, 125, 0), V(0, 0, 1), 5.25),
    Part.Circle(V(88.507957, 125, 0), V(0, 0, 1), 3.25),
], False)
sketch22.addConstraint([
    Sketcher.Constraint("Coincident", 1, 3, 0, 3),
    Sketcher.Constraint("Diameter", 0, 10.5),
    Sketcher.Constraint("Diameter", 1, 6.5),
    Sketcher.Constraint("DistanceY", -1, 1, 0, 3, 125.0),
    Sketcher.Constraint("DistanceX", -1, 1, 0, 3, 88.507957),
])
pad14 = doc.addObject("PartDesign::Pad", "Pad013")
body.addObject(pad14)
pad14.Profile = sketch22
pad14.Length = 46.5
pad14.Reversed = True

sketch23 = doc.addObject("Sketcher::SketchObject", "Sketch022")
body.addObject(sketch23)
sketch23.AttachmentSupport = (doc.XY_Plane, [""])
sketch23.MapMode = "FlatFace"
sketch23.AttachmentOffset = App.Placement(V(0, 0, 3.729533), App.Rotation())
sketch23.addGeometry([
    Part.Circle(V(88.507957, 125, 0), V(0, 0, 1), 5.25),
    Part.Circle(V(88.507957, 125, 0), V(0, 0, 1), 3.25),
], False)
sketch23.addConstraint([
    Sketcher.Constraint("Coincident", 1, 3, 0, 3),
    Sketcher.Constraint("Diameter", 0, 10.5),
    Sketcher.Constraint("Diameter", 1, 6.5),
    Sketcher.Constraint("DistanceY", -1, 1, 0, 3, 125.0),
    Sketcher.Constraint("DistanceX", -1, 1, 0, 3, 88.507957),
])
pocket5 = doc.addObject("PartDesign::Pocket", "Pocket004")
body.addObject(pocket5)
pocket5.Profile = sketch23
pocket5.Length = 3.5

sketch24 = doc.addObject("Sketcher::SketchObject", "Sketch023")
body.addObject(sketch24)
sketch24.AttachmentSupport = (doc.XZ_Plane, [""])
sketch24.MapMode = "FlatFace"
sketch24.AttachmentOffset = App.Placement(V(0, 0, -14), App.Rotation())
sketch24.addGeometry([
    Part.Circle(V(73.507957, 8.229533, 0), V(0, 0, 1), 1.65),
    Part.Circle(V(103.507957, 8.229533, 0), V(0, 0, 1), 1.65),
    Part.Circle(V(103.507957, 42.229533, 0), V(0, 0, 1), 1.65),
    Part.Circle(V(73.507957, 42.229533, 0), V(0, 0, 1), 1.65),
], False)
sketch24.addConstraint([
    Sketcher.Constraint("Equal", 0, 1),
    Sketcher.Constraint("Equal", 1, 2),
    Sketcher.Constraint("Equal", 2, 3),
    Sketcher.Constraint("Horizontal", 0, 3, 1, 3),
    Sketcher.Constraint("Horizontal", 2, 3, 3, 3),
    Sketcher.Constraint("Vertical", 1, 3, 2, 3),
    Sketcher.Constraint("Vertical", 0, 3, 3, 3),
    Sketcher.Constraint("Diameter", 0, 3.3),
    Sketcher.Constraint("DistanceX", 0, 3, 1, 3, 30.0),
    Sketcher.Constraint("DistanceY", 1, 3, 2, 3, 34.0),
    Sketcher.Constraint("DistanceX", -1, 1, 0, 3, 73.507957),
    Sketcher.Constraint("DistanceY", -1, 1, 0, 3, 8.229533),
])
doc.recompute()
hole5 = doc.addObject("PartDesign::Hole", "Hole004")
body.addObject(hole5)
hole5.Profile = sketch24
hole5.ThreadType = "None"
hole5.Diameter = 3.3
hole5.DepthType = "ThroughAll"
hole5.Reversed = True

sketch25 = doc.addObject("Sketcher::SketchObject", "Sketch024")
body.addObject(sketch25)
sketch25.AttachmentSupport = (doc.XY_Plane, [""])
sketch25.MapMode = "FlatFace"
sketch25.AttachmentOffset = App.Placement(V(0, 0, 125.229533), App.Rotation())
add_polygon(sketch25, [(32.343634, 167.445626), (32.343634, 5), (269.430907, 5), (269.430907, 167.445626)])
sketch25.addConstraint([
    Sketcher.Constraint("Vertical", 0),
    Sketcher.Constraint("Horizontal", 1),
    Sketcher.Constraint("Vertical", 2),
    Sketcher.Constraint("Horizontal", 3),
    Sketcher.Constraint("DistanceY", -1, 1, 0, 2, 5.0),
    Sketcher.Constraint("DistanceX", 1, 1, 1, 2, 237.087273),
    Sketcher.Constraint("DistanceY", 0, 2, 0, 1, 162.445626),
    Sketcher.Constraint("DistanceX", -1, 1, 0, 2, 32.343634),
])
pocket6 = doc.addObject("PartDesign::Pocket", "Pocket005")
body.addObject(pocket6)
pocket6.Profile = sketch25
pocket6.Type = "ThroughAll"

sketch26 = doc.addObject("Sketcher::SketchObject", "Sketch025")
body.addObject(sketch26)
sketch26.AttachmentSupport = (doc.YZ_Plane, [""])
sketch26.MapMode = "FlatFace"
sketch26.AttachmentOffset = App.Placement(V(0, 0, 313.507957), App.Rotation())
add_polygon(sketch26, [(5, 125.229533), (0, 125.229533), (0, -74.770467), (5, -74.770467)])
sketch26.addConstraint([
    Sketcher.Constraint("Horizontal", 0),
    Sketcher.Constraint("Vertical", 1),
    Sketcher.Constraint("Horizontal", 2),
    Sketcher.Constraint("Vertical", 3),
    Sketcher.Constraint("PointOnObject", 0, 2, -2),
    Sketcher.Constraint("DistanceX", 0, 2, 0, 1, 5.0),
    Sketcher.Constraint("DistanceY", 1, 2, 1, 1, 200.0),
    Sketcher.Constraint("DistanceY", -1, 1, 0, 2, 125.229533),
])
pad15 = doc.addObject("PartDesign::Pad", "Pad014")
body.addObject(pad15)
pad15.Profile = sketch26
pad15.Length = 30

doc.recompute()
